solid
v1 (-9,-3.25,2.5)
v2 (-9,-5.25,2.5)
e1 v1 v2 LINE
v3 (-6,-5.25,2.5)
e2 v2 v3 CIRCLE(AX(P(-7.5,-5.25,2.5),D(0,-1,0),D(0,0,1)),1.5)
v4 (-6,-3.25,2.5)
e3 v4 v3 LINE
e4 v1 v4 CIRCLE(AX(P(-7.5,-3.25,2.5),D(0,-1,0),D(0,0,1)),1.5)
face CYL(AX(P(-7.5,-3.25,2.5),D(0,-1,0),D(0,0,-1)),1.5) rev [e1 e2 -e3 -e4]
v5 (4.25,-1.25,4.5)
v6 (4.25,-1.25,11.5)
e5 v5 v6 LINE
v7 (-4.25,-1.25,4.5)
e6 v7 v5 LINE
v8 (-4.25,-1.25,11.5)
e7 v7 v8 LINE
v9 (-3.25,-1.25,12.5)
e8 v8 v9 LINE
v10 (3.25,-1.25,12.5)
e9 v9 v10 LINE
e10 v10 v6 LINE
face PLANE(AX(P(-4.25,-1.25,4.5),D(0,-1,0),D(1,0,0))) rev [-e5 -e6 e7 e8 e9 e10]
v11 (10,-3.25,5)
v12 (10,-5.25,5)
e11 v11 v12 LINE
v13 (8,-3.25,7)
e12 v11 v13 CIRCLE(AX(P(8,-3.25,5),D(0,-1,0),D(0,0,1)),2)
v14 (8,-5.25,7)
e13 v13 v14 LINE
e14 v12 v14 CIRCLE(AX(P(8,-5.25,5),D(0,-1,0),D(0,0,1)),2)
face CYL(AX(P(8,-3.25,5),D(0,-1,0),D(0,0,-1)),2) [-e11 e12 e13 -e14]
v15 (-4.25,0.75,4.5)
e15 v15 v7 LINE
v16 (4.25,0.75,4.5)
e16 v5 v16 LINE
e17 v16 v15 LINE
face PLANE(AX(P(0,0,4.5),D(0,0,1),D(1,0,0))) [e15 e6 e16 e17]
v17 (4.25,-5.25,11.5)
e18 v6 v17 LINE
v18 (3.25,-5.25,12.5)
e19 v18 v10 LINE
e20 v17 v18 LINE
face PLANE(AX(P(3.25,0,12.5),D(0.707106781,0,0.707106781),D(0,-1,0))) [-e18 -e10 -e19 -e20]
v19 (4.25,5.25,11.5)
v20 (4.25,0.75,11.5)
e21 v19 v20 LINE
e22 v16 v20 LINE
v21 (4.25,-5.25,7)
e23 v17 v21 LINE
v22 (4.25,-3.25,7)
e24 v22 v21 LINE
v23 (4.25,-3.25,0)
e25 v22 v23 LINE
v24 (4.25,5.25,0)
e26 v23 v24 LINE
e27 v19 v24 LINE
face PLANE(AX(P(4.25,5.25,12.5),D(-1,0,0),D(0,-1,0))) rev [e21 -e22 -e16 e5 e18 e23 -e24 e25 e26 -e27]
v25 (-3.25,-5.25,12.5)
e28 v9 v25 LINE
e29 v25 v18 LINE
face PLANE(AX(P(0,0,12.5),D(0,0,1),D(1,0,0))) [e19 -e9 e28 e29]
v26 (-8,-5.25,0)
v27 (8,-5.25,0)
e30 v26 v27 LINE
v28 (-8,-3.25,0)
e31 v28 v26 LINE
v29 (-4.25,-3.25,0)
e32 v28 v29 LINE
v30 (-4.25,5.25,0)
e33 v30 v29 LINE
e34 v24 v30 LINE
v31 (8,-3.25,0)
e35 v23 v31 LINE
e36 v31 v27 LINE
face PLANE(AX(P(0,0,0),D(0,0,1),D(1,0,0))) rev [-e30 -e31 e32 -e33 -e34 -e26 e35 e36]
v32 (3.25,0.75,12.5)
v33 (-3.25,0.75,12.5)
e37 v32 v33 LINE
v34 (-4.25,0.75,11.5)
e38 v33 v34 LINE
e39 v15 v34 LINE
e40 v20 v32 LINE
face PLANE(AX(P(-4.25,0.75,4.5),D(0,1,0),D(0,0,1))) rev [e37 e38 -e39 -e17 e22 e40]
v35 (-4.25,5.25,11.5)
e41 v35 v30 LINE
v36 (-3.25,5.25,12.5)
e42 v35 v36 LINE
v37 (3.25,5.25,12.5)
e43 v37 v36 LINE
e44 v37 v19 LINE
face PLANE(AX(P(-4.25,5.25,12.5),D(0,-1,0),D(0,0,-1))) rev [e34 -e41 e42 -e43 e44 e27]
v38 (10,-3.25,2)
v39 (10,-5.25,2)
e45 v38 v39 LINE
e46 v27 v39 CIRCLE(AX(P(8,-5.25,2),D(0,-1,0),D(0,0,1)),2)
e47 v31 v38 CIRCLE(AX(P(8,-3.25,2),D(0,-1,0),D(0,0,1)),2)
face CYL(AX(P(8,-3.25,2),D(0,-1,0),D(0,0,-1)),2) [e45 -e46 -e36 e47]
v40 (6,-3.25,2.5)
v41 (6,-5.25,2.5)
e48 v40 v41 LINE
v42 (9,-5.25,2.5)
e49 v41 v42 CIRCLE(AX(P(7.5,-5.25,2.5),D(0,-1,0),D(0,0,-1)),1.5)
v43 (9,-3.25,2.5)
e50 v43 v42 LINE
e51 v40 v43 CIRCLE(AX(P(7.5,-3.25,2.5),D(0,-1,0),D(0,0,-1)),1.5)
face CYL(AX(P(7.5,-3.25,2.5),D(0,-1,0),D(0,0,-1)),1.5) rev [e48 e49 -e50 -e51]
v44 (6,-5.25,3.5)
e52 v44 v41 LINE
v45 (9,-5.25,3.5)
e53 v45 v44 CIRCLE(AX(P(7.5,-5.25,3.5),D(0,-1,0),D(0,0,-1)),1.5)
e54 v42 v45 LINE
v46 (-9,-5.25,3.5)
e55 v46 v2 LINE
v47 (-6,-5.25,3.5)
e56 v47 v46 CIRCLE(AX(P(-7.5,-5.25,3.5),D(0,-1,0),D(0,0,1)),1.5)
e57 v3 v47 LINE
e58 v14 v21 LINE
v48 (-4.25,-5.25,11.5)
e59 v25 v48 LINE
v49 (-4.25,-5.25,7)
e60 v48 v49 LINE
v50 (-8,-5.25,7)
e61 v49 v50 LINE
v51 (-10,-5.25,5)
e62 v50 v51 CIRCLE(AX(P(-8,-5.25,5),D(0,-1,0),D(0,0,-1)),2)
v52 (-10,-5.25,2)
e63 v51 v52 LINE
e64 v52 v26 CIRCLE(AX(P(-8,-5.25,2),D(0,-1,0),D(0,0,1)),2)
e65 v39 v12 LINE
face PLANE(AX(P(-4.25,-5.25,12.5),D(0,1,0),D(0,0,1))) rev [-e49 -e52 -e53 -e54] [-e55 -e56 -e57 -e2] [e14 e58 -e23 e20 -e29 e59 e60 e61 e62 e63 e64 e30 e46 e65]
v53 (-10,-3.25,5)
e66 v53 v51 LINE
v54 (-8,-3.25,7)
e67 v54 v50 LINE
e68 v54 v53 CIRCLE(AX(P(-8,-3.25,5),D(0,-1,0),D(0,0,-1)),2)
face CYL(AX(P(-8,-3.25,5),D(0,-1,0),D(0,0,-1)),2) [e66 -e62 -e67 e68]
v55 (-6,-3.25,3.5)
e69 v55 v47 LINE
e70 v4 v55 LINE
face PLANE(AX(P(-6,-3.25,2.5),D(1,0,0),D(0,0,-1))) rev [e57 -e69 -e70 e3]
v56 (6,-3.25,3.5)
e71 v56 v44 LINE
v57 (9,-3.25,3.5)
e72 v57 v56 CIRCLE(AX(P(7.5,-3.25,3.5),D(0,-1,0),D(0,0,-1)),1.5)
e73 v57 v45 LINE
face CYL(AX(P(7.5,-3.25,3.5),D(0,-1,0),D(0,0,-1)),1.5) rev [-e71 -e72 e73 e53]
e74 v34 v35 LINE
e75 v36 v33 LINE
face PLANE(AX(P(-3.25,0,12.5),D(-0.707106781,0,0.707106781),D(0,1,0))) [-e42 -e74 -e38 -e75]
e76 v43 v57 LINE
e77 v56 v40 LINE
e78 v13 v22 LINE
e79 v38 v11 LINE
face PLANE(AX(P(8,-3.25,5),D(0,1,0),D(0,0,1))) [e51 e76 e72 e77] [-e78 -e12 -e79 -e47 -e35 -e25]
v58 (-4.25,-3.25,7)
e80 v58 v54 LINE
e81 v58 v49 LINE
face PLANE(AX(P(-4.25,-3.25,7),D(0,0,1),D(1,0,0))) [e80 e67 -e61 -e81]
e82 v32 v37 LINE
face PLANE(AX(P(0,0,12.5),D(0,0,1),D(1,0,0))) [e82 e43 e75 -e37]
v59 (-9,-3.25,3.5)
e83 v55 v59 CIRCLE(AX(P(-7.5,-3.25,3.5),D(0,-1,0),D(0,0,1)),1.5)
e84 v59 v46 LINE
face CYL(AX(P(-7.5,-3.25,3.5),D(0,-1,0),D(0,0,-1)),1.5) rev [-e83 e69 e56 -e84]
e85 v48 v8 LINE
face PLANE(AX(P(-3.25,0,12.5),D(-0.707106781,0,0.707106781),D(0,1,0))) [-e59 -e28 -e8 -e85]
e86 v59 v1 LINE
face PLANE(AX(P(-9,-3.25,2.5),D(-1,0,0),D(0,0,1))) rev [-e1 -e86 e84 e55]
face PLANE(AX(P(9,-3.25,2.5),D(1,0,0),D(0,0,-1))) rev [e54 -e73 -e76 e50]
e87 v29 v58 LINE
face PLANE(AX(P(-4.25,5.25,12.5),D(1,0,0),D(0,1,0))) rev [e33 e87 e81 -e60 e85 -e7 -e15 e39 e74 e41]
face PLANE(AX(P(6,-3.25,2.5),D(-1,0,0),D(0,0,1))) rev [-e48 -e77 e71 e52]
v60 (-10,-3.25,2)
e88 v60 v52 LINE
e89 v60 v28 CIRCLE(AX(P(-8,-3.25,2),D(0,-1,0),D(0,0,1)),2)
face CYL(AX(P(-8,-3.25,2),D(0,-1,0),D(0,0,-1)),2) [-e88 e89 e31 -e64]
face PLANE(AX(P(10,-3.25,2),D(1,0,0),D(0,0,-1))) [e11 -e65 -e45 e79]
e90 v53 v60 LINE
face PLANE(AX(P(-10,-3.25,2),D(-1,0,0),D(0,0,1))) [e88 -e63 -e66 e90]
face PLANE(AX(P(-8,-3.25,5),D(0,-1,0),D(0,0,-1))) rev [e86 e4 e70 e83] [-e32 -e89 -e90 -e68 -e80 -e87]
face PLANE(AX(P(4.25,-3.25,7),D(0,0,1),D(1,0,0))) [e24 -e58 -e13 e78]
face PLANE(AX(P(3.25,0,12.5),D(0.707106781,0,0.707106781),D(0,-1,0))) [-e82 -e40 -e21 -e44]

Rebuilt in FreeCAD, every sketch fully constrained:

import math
import FreeCAD as App
import Part
import Sketcher


def edges_at(feature, points):
    """Names of the edges that pass closest to the given points."""
    edges = feature.Shape.Edges
    near = lambda p: min(range(len(edges)), key=lambda i: edges[i].distToShape(Part.Vertex(*p))[0])
    return sorted({f"Edge{near(p) + 1}" for p in points})


def add_polygon(sketch, points):
    """Adds a closed chain of lines whose ends are joined by coincident constraints."""
    first, n = sketch.GeometryCount, len(points)
    for a, b in zip(points, points[1:] + points[:1]):
        sketch.addGeometry(Part.LineSegment(App.Vector(*a, 0), App.Vector(*b, 0)), False)
    for i in range(n):
        sketch.addConstraint(Sketcher.Constraint("Coincident", first + i, 2, first + (i + 1) % n, 1))

doc = App.newDocument("Part")
params = doc.addObject("Spreadsheet::Sheet", "Params")
for row, (alias, value) in enumerate([
    ("sketch1_width", "8.5 mm"),
    ("sketch1_height", "10.5 mm"),
    ("pad1_length", "12.5 mm"),
    ("sketch2_height", "2 mm"),
    ("sketch2_width", "8.5 mm"),
    ("pocket1_length", "8 mm"),
    ("sketch3_radius", "2 mm"),
    ("sketch3_radius2", "1.5 mm"),
    ("sketch3_height", "3 mm"),
    ("sketch3_height2", "1 mm"),
    ("sketch3_width", "3.75 mm"),
    ("pad2_length", "2 mm"),
    ("chamfer_size", "1 mm"),
], start=1):
    params.set(f"A{row}", alias)
    params.set(f"B{row}", "=" + value)
    params.setAlias(f"B{row}", alias)

body = doc.addObject("PartDesign::Body", "Body")

# Sketch on XY plane
sketch1 = body.newObject("Sketcher::SketchObject", "Sketch")
sketch1.AttachmentSupport = (doc.getObject("XY_Plane"), [""])
sketch1.MapMode = "FlatFace"
add_polygon(sketch1, [(-4, 5), (-4, -5), (4, -5), (4, 5)])  # lines 0-3
sketch1.addConstraint([
    Sketcher.Constraint("Vertical", 0),
    Sketcher.Constraint("Horizontal", 1),
    Sketcher.Constraint("Vertical", 2),
    Sketcher.Constraint("Horizontal", 3),
    Sketcher.Constraint("Symmetric", 0, 2, 2, 2, -1, 1),
    Sketcher.Constraint("DistanceX", 1, 1, 1, 2, 8.5),
    Sketcher.Constraint("DistanceY", 0, 2, 0, 1, 10.5),
])
sketch1.setExpression("Constraints[9]", "Params.sketch1_width")
sketch1.setExpression("Constraints[10]", "Params.sketch1_height")
pad1 = body.newObject("PartDesign::Pad", "Pad")
pad1.Profile = sketch1
pad1.setExpression("Length", "Params.pad1_length")

# Sketch on XY plane
sketch2 = body.newObject("Sketcher::SketchObject", "Sketch001")
sketch2.AttachmentSupport = (doc.getObject("XY_Plane"), [""])
sketch2.MapMode = "FlatFace"
sketch2.AttachmentOffset = App.Placement(App.Vector(0, 0, 12.5), App.Rotation())
add_polygon(sketch2, [(-4.2, 0.8), (-4.2, -1.2), (4.2, -1.2), (4.2, 0.8)])  # lines 0-3
sketch2.addConstraint([
    Sketcher.Constraint("Vertical", 0),
    Sketcher.Constraint("Horizontal", 1),
    Sketcher.Constraint("Vertical", 2),
    Sketcher.Constraint("Horizontal", 3),
    Sketcher.Constraint("DistanceY", 0, 2, 0, 1, 2.0),
    Sketcher.Constraint("DistanceX", 1, 1, 1, 2, 8.5),
    Sketcher.Constraint("DistanceX", 0, 2, -1, 1, 4.25),
    Sketcher.Constraint("DistanceY", 0, 2, -1, 1, 1.25),
])
sketch2.setExpression("Constraints[8]", "Params.sketch2_height")
sketch2.setExpression("Constraints[9]", "Params.sketch2_width")
pocket1 = body.newObject("PartDesign::Pocket", "Pocket")
pocket1.Profile = sketch2
pocket1.setExpression("Length", "Params.pocket1_length")

# Sketch on XZ plane
sketch3 = body.newObject("Sketcher::SketchObject", "Sketch002")
sketch3.AttachmentSupport = (doc.getObject("XZ_Plane"), [""])
sketch3.MapMode = "FlatFace"
sketch3.AttachmentOffset = App.Placement(App.Vector(0, 0, 5.25), App.Rotation())
sketch3.addGeometry([
    Part.LineSegment(App.Vector(4.2, 0, 0), App.Vector(8, 0, 0)),  # 0
    Part.ArcOfCircle(Part.Circle(App.Vector(8, 2, 0), App.Vector(0, 0, 1), 2), math.radians(-90), math.radians(0)),  # 1
    Part.LineSegment(App.Vector(10, 2, 0), App.Vector(10, 5, 0)),  # 2
    Part.ArcOfCircle(Part.Circle(App.Vector(8, 5, 0), App.Vector(0, 0, 1), 2), math.radians(0), math.radians(90)),  # 3
    Part.LineSegment(App.Vector(8, 7, 0), App.Vector(4.2, 7, 0)),  # 4
    Part.LineSegment(App.Vector(4.2, 7, 0), App.Vector(4.2, 0, 0)),  # 5
    Part.ArcOfCircle(Part.Circle(App.Vector(7.5, 2.5, 0), App.Vector(0, 0, 1), 1.5), math.radians(180), math.radians(360)),  # 6
    Part.LineSegment(App.Vector(6, 2.5, 0), App.Vector(6, 3.5, 0)),  # 7
    Part.ArcOfCircle(Part.Circle(App.Vector(7.5, 3.5, 0), App.Vector(0, 0, 1), 1.5), math.radians(0), math.radians(180)),  # 8
    Part.LineSegment(App.Vector(9, 3.5, 0), App.Vector(9, 2.5, 0)),  # 9
    Part.LineSegment(App.Vector(-10, 5, 0), App.Vector(-10, 2, 0)),  # 10
    Part.ArcOfCircle(Part.Circle(App.Vector(-8, 2, 0), App.Vector(0, 0, 1), 2), math.radians(-180), math.radians(-90)),  # 11
    Part.LineSegment(App.Vector(-8, 0, 0), App.Vector(-4.2, 0, 0)),  # 12
    Part.LineSegment(App.Vector(-4.2, 0, 0), App.Vector(-4.2, 7, 0)),  # 13
    Part.LineSegment(App.Vector(-4.2, 7, 0), App.Vector(-8, 7, 0)),  # 14
    Part.ArcOfCircle(Part.Circle(App.Vector(-8, 5, 0), App.Vector(0, 0, 1), 2), math.radians(90), math.radians(180)),  # 15
    Part.ArcOfCircle(Part.Circle(App.Vector(-7.5, 2.5, 0), App.Vector(0, 0, 1), 1.5), math.radians(180), math.radians(360)),  # 16
    Part.LineSegment(App.Vector(-9, 2.5, 0), App.Vector(-9, 3.5, 0)),  # 17
    Part.ArcOfCircle(Part.Circle(App.Vector(-7.5, 3.5, 0), App.Vector(0, 0, 1), 1.5), math.radians(0), math.radians(180)),  # 18
    Part.LineSegment(App.Vector(-6, 3.5, 0), App.Vector(-6, 2.5, 0)),  # 19
], False)
sketch3.addConstraint([
    Sketcher.Constraint("Tangent", 0, 2, 1, 1),
    Sketcher.Constraint("Tangent", 1, 2, 2, 1),
    Sketcher.Constraint("Tangent", 2, 2, 3, 1),
    Sketcher.Constraint("Tangent", 3, 2, 4, 1),
    Sketcher.Constraint("Coincident", 4, 2, 5, 1),
    Sketcher.Constraint("Coincident", 5, 2, 0, 1),
    Sketcher.Constraint("Tangent", 6, 1, 7, 1),
    Sketcher.Constraint("Tangent", 7, 2, 8, 2),
    Sketcher.Constraint("Tangent", 8, 1, 9, 1),
    Sketcher.Constraint("Tangent", 9, 2, 6, 2),
    Sketcher.Constraint("Tangent", 10, 2, 11, 1),
    Sketcher.Constraint("Tangent", 11, 2, 12, 1),
    Sketcher.Constraint("Coincident", 12, 2, 13, 1),
    Sketcher.Constraint("Coincident", 13, 2, 14, 1),
    Sketcher.Constraint("Tangent", 14, 2, 15, 1),
    Sketcher.Constraint("Tangent", 15, 2, 10, 1),
    Sketcher.Constraint("Tangent", 16, 1, 17, 1),
    Sketcher.Constraint("Tangent", 17, 2, 18, 2),
    Sketcher.Constraint("Tangent", 18, 1, 19, 1),
    Sketcher.Constraint("Tangent", 19, 2, 16, 2),
    Sketcher.Constraint("Horizontal", 0),
    Sketcher.Constraint("Vertical", 2),
    Sketcher.Constraint("Horizontal", 4),
    Sketcher.Constraint("Vertical", 5),
    Sketcher.Constraint("Vertical", 7),
    Sketcher.Constraint("Vertical", 9),
    Sketcher.Constraint("Vertical", 10),
    Sketcher.Constraint("Horizontal", 12),
    Sketcher.Constraint("Vertical", 13),
    Sketcher.Constraint("Horizontal", 14),
    Sketcher.Constraint("Vertical", 17),
    Sketcher.Constraint("Vertical", 19),
    Sketcher.Constraint("Equal", 1, 3),
    Sketcher.Constraint("Equal", 3, 11),
    Sketcher.Constraint("Equal", 11, 15),
    Sketcher.Constraint("Equal", 8, 16),
    Sketcher.Constraint("Symmetric", 0, 2, 11, 2, -1, 1),
    Sketcher.Constraint("Symmetric", 6, 3, 16, 3, -2),
    Sketcher.Constraint("Symmetric", 5, 2, 12, 2, -2),
    Sketcher.Constraint("Horizontal", 3, 3, 15, 3),
    Sketcher.Constraint("Horizontal", 8, 3, 18, 3),
    Sketcher.Constraint("Radius", 1, 2.0),
    Sketcher.Constraint("Radius", 6, 1.5),
    Sketcher.Constraint("DistanceY", 2, 1, 2, 2, 3.0),
    Sketcher.Constraint("DistanceY", 7, 1, 7, 2, 1.0),
    Sketcher.Constraint("DistanceX", -1, 1, 1, 3, 8.0),
    Sketcher.Constraint("DistanceX", -1, 1, 6, 1, 6.0),
    Sketcher.Constraint("DistanceX", 0, 1, 0, 2, 3.75),
    Sketcher.Constraint("DistanceY", -1, 1, 6, 3, 2.5),
])
sketch3.setExpression("Constraints[41]", "Params.sketch3_radius")
sketch3.setExpression("Constraints[42]", "Params.sketch3_radius2")
sketch3.setExpression("Constraints[43]", "Params.sketch3_height")
sketch3.setExpression("Constraints[44]", "Params.sketch3_height2")
sketch3.setExpression("Constraints[47]", "Params.sketch3_width")
pad2 = body.newObject("PartDesign::Pad", "Pad001")
pad2.Profile = sketch3
pad2.setExpression("Length", "Params.pad2_length")
pad2.Reversed = True
doc.recompute()

chamfer = body.newObject("PartDesign::Chamfer", "Chamfer")
chamfer.Base = (pad2, edges_at(pad2, [
    (-4.25, 3, 12.5),
    (4.25, 3, 12.5),
    (-4.25, -3.25, 12.5),
    (4.25, -3.25, 12.5),
]))
chamfer.setExpression("Size", "Params.chamfer_size")

doc.recompute()
